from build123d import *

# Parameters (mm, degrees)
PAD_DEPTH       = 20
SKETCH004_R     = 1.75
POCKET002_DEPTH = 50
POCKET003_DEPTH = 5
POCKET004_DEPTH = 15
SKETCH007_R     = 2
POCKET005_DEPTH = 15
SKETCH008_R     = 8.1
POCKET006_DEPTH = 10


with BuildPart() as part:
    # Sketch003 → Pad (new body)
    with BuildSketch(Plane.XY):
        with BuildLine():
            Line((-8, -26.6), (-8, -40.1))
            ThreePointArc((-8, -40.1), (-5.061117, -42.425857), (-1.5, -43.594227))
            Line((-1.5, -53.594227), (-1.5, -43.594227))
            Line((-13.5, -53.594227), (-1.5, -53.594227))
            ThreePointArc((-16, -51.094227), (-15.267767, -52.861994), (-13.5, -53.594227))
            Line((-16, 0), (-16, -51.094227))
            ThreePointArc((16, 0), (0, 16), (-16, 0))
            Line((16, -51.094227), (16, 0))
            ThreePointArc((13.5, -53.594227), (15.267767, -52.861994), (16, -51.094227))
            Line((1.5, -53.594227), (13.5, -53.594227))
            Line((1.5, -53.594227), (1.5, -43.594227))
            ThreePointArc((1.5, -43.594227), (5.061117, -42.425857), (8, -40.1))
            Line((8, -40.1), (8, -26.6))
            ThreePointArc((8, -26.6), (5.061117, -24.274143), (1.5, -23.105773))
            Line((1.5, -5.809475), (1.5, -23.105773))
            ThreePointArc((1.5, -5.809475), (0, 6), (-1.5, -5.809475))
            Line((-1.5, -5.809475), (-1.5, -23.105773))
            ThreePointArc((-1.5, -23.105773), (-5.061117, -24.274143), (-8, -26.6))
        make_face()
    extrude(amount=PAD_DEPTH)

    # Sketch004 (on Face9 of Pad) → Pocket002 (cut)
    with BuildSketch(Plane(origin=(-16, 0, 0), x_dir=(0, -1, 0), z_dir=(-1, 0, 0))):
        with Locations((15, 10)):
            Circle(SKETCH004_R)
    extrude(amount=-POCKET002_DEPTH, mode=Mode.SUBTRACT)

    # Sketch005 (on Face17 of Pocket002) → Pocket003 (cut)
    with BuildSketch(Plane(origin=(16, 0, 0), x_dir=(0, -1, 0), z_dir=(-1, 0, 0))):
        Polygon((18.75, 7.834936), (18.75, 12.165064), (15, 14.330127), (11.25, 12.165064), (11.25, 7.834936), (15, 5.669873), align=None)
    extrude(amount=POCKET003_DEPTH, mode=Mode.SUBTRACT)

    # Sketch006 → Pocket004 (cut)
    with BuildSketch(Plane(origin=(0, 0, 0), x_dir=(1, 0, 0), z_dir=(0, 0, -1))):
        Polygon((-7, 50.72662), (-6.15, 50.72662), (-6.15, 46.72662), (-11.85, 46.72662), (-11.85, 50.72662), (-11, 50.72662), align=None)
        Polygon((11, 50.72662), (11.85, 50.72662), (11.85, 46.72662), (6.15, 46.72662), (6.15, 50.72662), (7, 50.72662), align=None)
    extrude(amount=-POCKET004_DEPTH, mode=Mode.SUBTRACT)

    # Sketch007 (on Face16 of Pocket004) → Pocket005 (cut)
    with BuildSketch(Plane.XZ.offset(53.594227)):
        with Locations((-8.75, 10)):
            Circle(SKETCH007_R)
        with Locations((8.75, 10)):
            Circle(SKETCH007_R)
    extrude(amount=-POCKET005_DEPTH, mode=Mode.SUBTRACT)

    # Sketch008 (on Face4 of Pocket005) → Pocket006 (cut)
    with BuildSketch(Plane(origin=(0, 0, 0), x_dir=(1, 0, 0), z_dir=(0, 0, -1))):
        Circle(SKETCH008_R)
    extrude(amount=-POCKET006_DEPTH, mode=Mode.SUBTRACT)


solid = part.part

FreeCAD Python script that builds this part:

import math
import FreeCAD as App
import Part
import Sketcher
from FreeCAD import Vector
Q = App.Units.Quantity

doc = App.newDocument("Part")
body = doc.addObject("PartDesign::Body", "Body")

# Sketch on XY plane
sketch1 = body.newObject("Sketcher::SketchObject", "Sketch")
sketch1.AttachmentSupport = (doc.getObject("XY_Plane"), [""])
sketch1.MapMode = "FlatFace"
sketch1.addGeometry([
    Part.LineSegment(Vector(-8, -40.1, 0), Vector(-8, -26.6, 0)),  # 0
    Part.ArcOfCircle(Part.Circle(Vector(0, -33.7, 0), Vector(0, 0, 1), 10.7), math.radians(98), math.radians(138)),  # 1
    Part.LineSegment(Vector(-1.5, -23.1, 0), Vector(-1.5, -5.8, 0)),  # 2
    Part.ArcOfCircle(Part.Circle(Vector(0, 0, 0), Vector(0, 0, 1), 6), math.radians(-76), math.radians(256)),  # 3
    Part.LineSegment(Vector(1.5, -5.8, 0), Vector(1.5, -23.1, 0)),  # 4
    Part.ArcOfCircle(Part.Circle(Vector(0, -33.7, 0), Vector(0, 0, 1), 10.7), math.radians(42), math.radians(82)),  # 5
    Part.LineSegment(Vector(8, -26.6, 0), Vector(8, -40.1, 0)),  # 6
    Part.ArcOfCircle(Part.Circle(Vector(0, -33, 0), Vector(0, 0, 1), 10.7), math.radians(-82), math.radians(-42)),  # 7
    Part.LineSegment(Vector(1.5, -43.6, 0), Vector(1.5, -53.6, 0)),  # 8
    Part.LineSegment(Vector(1.5, -53.6, 0), Vector(13.5, -53.6, 0)),  # 9
    Part.ArcOfCircle(Part.Circle(Vector(13.5, -51.1, 0), Vector(0, 0, 1), 2.5), math.radians(-90), math.radians(0)),  # 10
    Part.LineSegment(Vector(16, -51.1, 0), Vector(16, 0, 0)),  # 11
    Part.ArcOfCircle(Part.Circle(Vector(0, 0, 0), Vector(0, 0, 1), 16), math.radians(0), math.radians(180)),  # 12
    Part.LineSegment(Vector(-16, 0, 0), Vector(-16, -51.1, 0)),  # 13
    Part.ArcOfCircle(Part.Circle(Vector(-13.5, -51.1, 0), Vector(0, 0, 1), 2.5), math.radians(180), math.radians(270)),  # 14
    Part.LineSegment(Vector(-13.5, -53.6, 0), Vector(-1.5, -53.6, 0)),  # 15
    Part.LineSegment(Vector(-1.5, -53.6, 0), Vector(-1.5, -43.6, 0)),  # 16
    Part.ArcOfCircle(Part.Circle(Vector(0, -33, 0), Vector(0, 0, 1), 10.7), math.radians(-138), math.radians(-98)),  # 17
], False)
sketch1.addConstraint([
    Sketcher.Constraint("Coincident", 0, 2, 1, 2),
    Sketcher.Constraint("Coincident", 1, 1, 2, 1),
    Sketcher.Constraint("Coincident", 2, 2, 3, 2),
    Sketcher.Constraint("Coincident", 3, 1, 4, 1),
    Sketcher.Constraint("Coincident", 4, 2, 5, 2),
    Sketcher.Constraint("Coincident", 5, 1, 6, 1),
    Sketcher.Constraint("Coincident", 6, 2, 7, 2),
    Sketcher.Constraint("Coincident", 7, 1, 8, 1),
    Sketcher.Constraint("Coincident", 8, 2, 9, 1),
    Sketcher.Constraint("Tangent", 9, 2, 10, 1),
    Sketcher.Constraint("Tangent", 10, 2, 11, 1),
    Sketcher.Constraint("Tangent", 11, 2, 12, 1),
    Sketcher.Constraint("Tangent", 12, 2, 13, 1),
    Sketcher.Constraint("Tangent", 13, 2, 14, 1),
    Sketcher.Constraint("Tangent", 14, 2, 15, 1),
    Sketcher.Constraint("Coincident", 15, 2, 16, 1),
    Sketcher.Constraint("Coincident", 16, 2, 17, 2),
    Sketcher.Constraint("Coincident", 17, 1, 0, 1),
    Sketcher.Constraint("Vertical", 0),
    Sketcher.Constraint("Vertical", 2),
    Sketcher.Constraint("Vertical", 4),
    Sketcher.Constraint("Vertical", 6),
    Sketcher.Constraint("Vertical", 8),
    Sketcher.Constraint("Horizontal", 9),
    Sketcher.Constraint("Vertical", 11),
    Sketcher.Constraint("Vertical", 13),
    Sketcher.Constraint("Horizontal", 15),
    Sketcher.Constraint("Vertical", 16),
    Sketcher.Constraint("Coincident", 3, 3, -1, 1),
    Sketcher.Constraint("Coincident", 12, 3, -1, 1),
    Sketcher.Constraint("Coincident", 5, 3, 1, 3),
    Sketcher.Constraint("Coincident", 17, 3, 7, 3),
    Sketcher.Constraint("Equal", 1, 5),
    Sketcher.Constraint("Equal", 5, 7),
    Sketcher.Constraint("Equal", 10, 14),
    Sketcher.Constraint("Equal", 7, 17),
    Sketcher.Constraint("Symmetric", 1, 1, 4, 2, -2),
    Sketcher.Constraint("Symmetric", 8, 2, 15, 2, -2),
    Sketcher.Constraint("Symmetric", 6, 2, 17, 1, -2),
    Sketcher.Constraint("Vertical", 4, 2, 7, 1),
    Sketcher.Constraint("Radius", 3, Q("6 mm")),
    Sketcher.Constraint("Radius", 12, Q("16 mm")),
    Sketcher.Constraint("Radius", 10, Q("2.5 mm")),
    Sketcher.Constraint("DistanceX", 9, 1, 9, 2, Q("12 mm")),
    Sketcher.Constraint("DistanceY", 8, 2, 8, 1, Q("10 mm")),
    Sketcher.Constraint("DistanceY", 0, 1, 0, 2, Q("13.5 mm")),
    Sketcher.Constraint("DistanceX", 0, 2, -1, 1, Q("8 mm")),
    Sketcher.Constraint("DistanceY", 0, 2, -1, 1, Q("26.6 mm")),
    Sketcher.Constraint("DistanceY", 2, 1, 2, 2, Q("17.296298 mm")),
])
pad1 = body.newObject("PartDesign::Pad", "Pad")
pad1.Profile = sketch1
pad1.Length = 20

# Sketch on YZ plane
sketch2 = body.newObject("Sketcher::SketchObject", "Sketch001")
sketch2.AttachmentSupport = (doc.getObject("YZ_Plane"), [""])
sketch2.MapMode = "FlatFace"
sketch2.AttachmentOffset = App.Placement(Vector(0, 0, -16), App.Rotation())
sketch2.addGeometry(Part.Circle(Vector(-15, 10, 0), Vector(0, 0, 1), 1.8), False)
sketch2.addConstraint([
    Sketcher.Constraint("Diameter", 0, Q("3.5 mm")),
    Sketcher.Constraint("DistanceX", 0, 3, -1, 1, Q("15 mm")),
    Sketcher.Constraint("DistanceY", -1, 1, 0, 3, Q("10 mm")),
])
pocket1 = body.newObject("PartDesign::Pocket", "Pocket")
pocket1.Profile = sketch2
pocket1.Length = 50
pocket1.Reversed = True

# Sketch on YZ plane
sketch3 = body.newObject("Sketcher::SketchObject", "Sketch002")
sketch3.AttachmentSupport = (doc.getObject("YZ_Plane"), [""])
sketch3.MapMode = "FlatFace"
sketch3.AttachmentOffset = App.Placement(Vector(0, 0, 16), App.Rotation())
sketch3.addGeometry([
    Part.LineSegment(Vector(-18.8, 7.8, 0), Vector(-18.8, 12.2, 0)),  # 0
    Part.LineSegment(Vector(-18.8, 12.2, 0), Vector(-15, 14.3, 0)),  # 1
    Part.LineSegment(Vector(-15, 14.3, 0), Vector(-11.2, 12.2, 0)),  # 2
    Part.LineSegment(Vector(-11.2, 12.2, 0), Vector(-11.2, 7.8, 0)),  # 3
    Part.LineSegment(Vector(-11.2, 7.8, 0), Vector(-15, 5.7, 0)),  # 4
    Part.LineSegment(Vector(-15, 5.7, 0), Vector(-18.8, 7.8, 0)),  # 5
], False)
sketch3.addConstraint([
    Sketcher.Constraint("Coincident", 0, 2, 1, 1),
    Sketcher.Constraint("Coincident", 1, 2, 2, 1),
    Sketcher.Constraint("Coincident", 2, 2, 3, 1),
    Sketcher.Constraint("Coincident", 3, 2, 4, 1),
    Sketcher.Constraint("Coincident", 4, 2, 5, 1),
    Sketcher.Constraint("Coincident", 5, 2, 0, 1),
    Sketcher.Constraint("Vertical", 0),
    Sketcher.Constraint("Vertical", 3),
    Sketcher.Constraint("Parallel", 1, 4),
    Sketcher.Constraint("Parallel", 2, 5),
    Sketcher.Constraint("Horizontal", 0, 2, 2, 2),
    Sketcher.Constraint("Horizontal", 3, 2, 5, 2),
    Sketcher.Constraint("Vertical", 1, 2, 4, 2),
    Sketcher.Constraint("Angle", 1, Q("29.999994 deg")),
    Sketcher.Constraint("DistanceX", 1, 2, -1, 1, Q("15 mm")),
    Sketcher.Constraint("DistanceX", 0, 2, 2, 2, Q("7.5 mm")),
    Sketcher.Constraint("DistanceY", 0, 1, 0, 2, Q("4.330128 mm")),
    Sketcher.Constraint("DistanceY", -1, 1, 0, 2, Q("12.165064 mm")),
])
pocket2 = body.newObject("PartDesign::Pocket", "Pocket001")
pocket2.Profile = sketch3
pocket2.Length = 5

# Sketch on XY plane
sketch4 = body.newObject("Sketcher::SketchObject", "Sketch003")
sketch4.AttachmentSupport = (doc.getObject("XY_Plane"), [""])
sketch4.MapMode = "FlatFace"
sketch4.addGeometry([
    Part.LineSegment(Vector(-6.2, -50.7, 0), Vector(-11.8, -50.7, 0)),  # 0
    Part.LineSegment(Vector(-11.8, -50.7, 0), Vector(-11.8, -46.7, 0)),  # 1
    Part.LineSegment(Vector(-11.8, -46.7, 0), Vector(-6.2, -46.7, 0)),  # 2
    Part.LineSegment(Vector(-6.2, -46.7, 0), Vector(-6.2, -50.7, 0)),  # 3
    Part.LineSegment(Vector(11.8, -50.7, 0), Vector(6.2, -50.7, 0)),  # 4
    Part.LineSegment(Vector(6.2, -50.7, 0), Vector(6.2, -46.7, 0)),  # 5
    Part.LineSegment(Vector(6.2, -46.7, 0), Vector(11.8, -46.7, 0)),  # 6
    Part.LineSegment(Vector(11.8, -46.7, 0), Vector(11.8, -50.7, 0)),  # 7
], False)
sketch4.addConstraint([
    Sketcher.Constraint("Coincident", 0, 2, 1, 1),
    Sketcher.Constraint("Coincident", 1, 2, 2, 1),
    Sketcher.Constraint("Coincident", 2, 2, 3, 1),
    Sketcher.Constraint("Coincident", 3, 2, 0, 1),
    Sketcher.Constraint("Coincident", 4, 2, 5, 1),
    Sketcher.Constraint("Coincident", 5, 2, 6, 1),
    Sketcher.Constraint("Coincident", 6, 2, 7, 1),
    Sketcher.Constraint("Coincident", 7, 2, 4, 1),
    Sketcher.Constraint("Horizontal", 0),
    Sketcher.Constraint("Vertical", 1),
    Sketcher.Constraint("Horizontal", 2),
    Sketcher.Constraint("Vertical", 3),
    Sketcher.Constraint("Horizontal", 4),
    Sketcher.Constraint("Vertical", 5),
    Sketcher.Constraint("Horizontal", 6),
    Sketcher.Constraint("Vertical", 7),
    Sketcher.Constraint("Symmetric", 3, 2, 4, 2, -2),
    Sketcher.Constraint("Symmetric", 1, 2, 6, 2, -2),
    Sketcher.Constraint("DistanceY", 1, 1, 1, 2, Q("4 mm")),
    Sketcher.Constraint("DistanceX", 0, 2, 0, 1, Q("5.7 mm")),
    Sketcher.Constraint("DistanceX", 0, 2, 4, 2, Q("18 mm")),
    Sketcher.Constraint("DistanceY", 0, 2, -1, 1, Q("50.72662 mm")),
])
pocket3 = body.newObject("PartDesign::Pocket", "Pocket002")
pocket3.Profile = sketch4
pocket3.Length = 15
pocket3.Reversed = True

# Sketch on XZ plane
sketch5 = body.newObject("Sketcher::SketchObject", "Sketch004")
sketch5.AttachmentSupport = (doc.getObject("XZ_Plane"), [""])
sketch5.MapMode = "FlatFace"
sketch5.AttachmentOffset = App.Placement(Vector(0, 0, 53.594227), App.Rotation())
sketch5.addGeometry([
    Part.Circle(Vector(-8.8, 10, 0), Vector(0, 0, 1), 2),
    Part.Circle(Vector(8.8, 10, 0), Vector(0, 0, 1), 2),
], False)
sketch5.addConstraint([
    Sketcher.Constraint("Equal", 0, 1),
    Sketcher.Constraint("Symmetric", 0, 3, 1, 3, -2),
    Sketcher.Constraint("Diameter", 0, Q("4 mm")),
    Sketcher.Constraint("DistanceY", -1, 1, 0, 3, Q("10 mm")),
    Sketcher.Constraint("DistanceX", 0, 3, 1, 3, Q("17.5 mm")),
])
pocket4 = body.newObject("PartDesign::Pocket", "Pocket003")
pocket4.Profile = sketch5
pocket4.Length = 15

# Sketch on XY plane
sketch6 = body.newObject("Sketcher::SketchObject", "Sketch005")
sketch6.AttachmentSupport = (doc.getObject("XY_Plane"), [""])
sketch6.MapMode = "FlatFace"
sketch6.addGeometry(Part.Circle(Vector(0, 0, 0), Vector(0, 0, 1), 8), False)
sketch6.addConstraint([
    Sketcher.Constraint("Coincident", 0, 3, -1, 1),
    Sketcher.Constraint("Diameter", 0, Q("16.2 mm")),
])
pocket5 = body.newObject("PartDesign::Pocket", "Pocket004")
pocket5.Profile = sketch6
pocket5.Length = 10
pocket5.Reversed = True

doc.recompute()
